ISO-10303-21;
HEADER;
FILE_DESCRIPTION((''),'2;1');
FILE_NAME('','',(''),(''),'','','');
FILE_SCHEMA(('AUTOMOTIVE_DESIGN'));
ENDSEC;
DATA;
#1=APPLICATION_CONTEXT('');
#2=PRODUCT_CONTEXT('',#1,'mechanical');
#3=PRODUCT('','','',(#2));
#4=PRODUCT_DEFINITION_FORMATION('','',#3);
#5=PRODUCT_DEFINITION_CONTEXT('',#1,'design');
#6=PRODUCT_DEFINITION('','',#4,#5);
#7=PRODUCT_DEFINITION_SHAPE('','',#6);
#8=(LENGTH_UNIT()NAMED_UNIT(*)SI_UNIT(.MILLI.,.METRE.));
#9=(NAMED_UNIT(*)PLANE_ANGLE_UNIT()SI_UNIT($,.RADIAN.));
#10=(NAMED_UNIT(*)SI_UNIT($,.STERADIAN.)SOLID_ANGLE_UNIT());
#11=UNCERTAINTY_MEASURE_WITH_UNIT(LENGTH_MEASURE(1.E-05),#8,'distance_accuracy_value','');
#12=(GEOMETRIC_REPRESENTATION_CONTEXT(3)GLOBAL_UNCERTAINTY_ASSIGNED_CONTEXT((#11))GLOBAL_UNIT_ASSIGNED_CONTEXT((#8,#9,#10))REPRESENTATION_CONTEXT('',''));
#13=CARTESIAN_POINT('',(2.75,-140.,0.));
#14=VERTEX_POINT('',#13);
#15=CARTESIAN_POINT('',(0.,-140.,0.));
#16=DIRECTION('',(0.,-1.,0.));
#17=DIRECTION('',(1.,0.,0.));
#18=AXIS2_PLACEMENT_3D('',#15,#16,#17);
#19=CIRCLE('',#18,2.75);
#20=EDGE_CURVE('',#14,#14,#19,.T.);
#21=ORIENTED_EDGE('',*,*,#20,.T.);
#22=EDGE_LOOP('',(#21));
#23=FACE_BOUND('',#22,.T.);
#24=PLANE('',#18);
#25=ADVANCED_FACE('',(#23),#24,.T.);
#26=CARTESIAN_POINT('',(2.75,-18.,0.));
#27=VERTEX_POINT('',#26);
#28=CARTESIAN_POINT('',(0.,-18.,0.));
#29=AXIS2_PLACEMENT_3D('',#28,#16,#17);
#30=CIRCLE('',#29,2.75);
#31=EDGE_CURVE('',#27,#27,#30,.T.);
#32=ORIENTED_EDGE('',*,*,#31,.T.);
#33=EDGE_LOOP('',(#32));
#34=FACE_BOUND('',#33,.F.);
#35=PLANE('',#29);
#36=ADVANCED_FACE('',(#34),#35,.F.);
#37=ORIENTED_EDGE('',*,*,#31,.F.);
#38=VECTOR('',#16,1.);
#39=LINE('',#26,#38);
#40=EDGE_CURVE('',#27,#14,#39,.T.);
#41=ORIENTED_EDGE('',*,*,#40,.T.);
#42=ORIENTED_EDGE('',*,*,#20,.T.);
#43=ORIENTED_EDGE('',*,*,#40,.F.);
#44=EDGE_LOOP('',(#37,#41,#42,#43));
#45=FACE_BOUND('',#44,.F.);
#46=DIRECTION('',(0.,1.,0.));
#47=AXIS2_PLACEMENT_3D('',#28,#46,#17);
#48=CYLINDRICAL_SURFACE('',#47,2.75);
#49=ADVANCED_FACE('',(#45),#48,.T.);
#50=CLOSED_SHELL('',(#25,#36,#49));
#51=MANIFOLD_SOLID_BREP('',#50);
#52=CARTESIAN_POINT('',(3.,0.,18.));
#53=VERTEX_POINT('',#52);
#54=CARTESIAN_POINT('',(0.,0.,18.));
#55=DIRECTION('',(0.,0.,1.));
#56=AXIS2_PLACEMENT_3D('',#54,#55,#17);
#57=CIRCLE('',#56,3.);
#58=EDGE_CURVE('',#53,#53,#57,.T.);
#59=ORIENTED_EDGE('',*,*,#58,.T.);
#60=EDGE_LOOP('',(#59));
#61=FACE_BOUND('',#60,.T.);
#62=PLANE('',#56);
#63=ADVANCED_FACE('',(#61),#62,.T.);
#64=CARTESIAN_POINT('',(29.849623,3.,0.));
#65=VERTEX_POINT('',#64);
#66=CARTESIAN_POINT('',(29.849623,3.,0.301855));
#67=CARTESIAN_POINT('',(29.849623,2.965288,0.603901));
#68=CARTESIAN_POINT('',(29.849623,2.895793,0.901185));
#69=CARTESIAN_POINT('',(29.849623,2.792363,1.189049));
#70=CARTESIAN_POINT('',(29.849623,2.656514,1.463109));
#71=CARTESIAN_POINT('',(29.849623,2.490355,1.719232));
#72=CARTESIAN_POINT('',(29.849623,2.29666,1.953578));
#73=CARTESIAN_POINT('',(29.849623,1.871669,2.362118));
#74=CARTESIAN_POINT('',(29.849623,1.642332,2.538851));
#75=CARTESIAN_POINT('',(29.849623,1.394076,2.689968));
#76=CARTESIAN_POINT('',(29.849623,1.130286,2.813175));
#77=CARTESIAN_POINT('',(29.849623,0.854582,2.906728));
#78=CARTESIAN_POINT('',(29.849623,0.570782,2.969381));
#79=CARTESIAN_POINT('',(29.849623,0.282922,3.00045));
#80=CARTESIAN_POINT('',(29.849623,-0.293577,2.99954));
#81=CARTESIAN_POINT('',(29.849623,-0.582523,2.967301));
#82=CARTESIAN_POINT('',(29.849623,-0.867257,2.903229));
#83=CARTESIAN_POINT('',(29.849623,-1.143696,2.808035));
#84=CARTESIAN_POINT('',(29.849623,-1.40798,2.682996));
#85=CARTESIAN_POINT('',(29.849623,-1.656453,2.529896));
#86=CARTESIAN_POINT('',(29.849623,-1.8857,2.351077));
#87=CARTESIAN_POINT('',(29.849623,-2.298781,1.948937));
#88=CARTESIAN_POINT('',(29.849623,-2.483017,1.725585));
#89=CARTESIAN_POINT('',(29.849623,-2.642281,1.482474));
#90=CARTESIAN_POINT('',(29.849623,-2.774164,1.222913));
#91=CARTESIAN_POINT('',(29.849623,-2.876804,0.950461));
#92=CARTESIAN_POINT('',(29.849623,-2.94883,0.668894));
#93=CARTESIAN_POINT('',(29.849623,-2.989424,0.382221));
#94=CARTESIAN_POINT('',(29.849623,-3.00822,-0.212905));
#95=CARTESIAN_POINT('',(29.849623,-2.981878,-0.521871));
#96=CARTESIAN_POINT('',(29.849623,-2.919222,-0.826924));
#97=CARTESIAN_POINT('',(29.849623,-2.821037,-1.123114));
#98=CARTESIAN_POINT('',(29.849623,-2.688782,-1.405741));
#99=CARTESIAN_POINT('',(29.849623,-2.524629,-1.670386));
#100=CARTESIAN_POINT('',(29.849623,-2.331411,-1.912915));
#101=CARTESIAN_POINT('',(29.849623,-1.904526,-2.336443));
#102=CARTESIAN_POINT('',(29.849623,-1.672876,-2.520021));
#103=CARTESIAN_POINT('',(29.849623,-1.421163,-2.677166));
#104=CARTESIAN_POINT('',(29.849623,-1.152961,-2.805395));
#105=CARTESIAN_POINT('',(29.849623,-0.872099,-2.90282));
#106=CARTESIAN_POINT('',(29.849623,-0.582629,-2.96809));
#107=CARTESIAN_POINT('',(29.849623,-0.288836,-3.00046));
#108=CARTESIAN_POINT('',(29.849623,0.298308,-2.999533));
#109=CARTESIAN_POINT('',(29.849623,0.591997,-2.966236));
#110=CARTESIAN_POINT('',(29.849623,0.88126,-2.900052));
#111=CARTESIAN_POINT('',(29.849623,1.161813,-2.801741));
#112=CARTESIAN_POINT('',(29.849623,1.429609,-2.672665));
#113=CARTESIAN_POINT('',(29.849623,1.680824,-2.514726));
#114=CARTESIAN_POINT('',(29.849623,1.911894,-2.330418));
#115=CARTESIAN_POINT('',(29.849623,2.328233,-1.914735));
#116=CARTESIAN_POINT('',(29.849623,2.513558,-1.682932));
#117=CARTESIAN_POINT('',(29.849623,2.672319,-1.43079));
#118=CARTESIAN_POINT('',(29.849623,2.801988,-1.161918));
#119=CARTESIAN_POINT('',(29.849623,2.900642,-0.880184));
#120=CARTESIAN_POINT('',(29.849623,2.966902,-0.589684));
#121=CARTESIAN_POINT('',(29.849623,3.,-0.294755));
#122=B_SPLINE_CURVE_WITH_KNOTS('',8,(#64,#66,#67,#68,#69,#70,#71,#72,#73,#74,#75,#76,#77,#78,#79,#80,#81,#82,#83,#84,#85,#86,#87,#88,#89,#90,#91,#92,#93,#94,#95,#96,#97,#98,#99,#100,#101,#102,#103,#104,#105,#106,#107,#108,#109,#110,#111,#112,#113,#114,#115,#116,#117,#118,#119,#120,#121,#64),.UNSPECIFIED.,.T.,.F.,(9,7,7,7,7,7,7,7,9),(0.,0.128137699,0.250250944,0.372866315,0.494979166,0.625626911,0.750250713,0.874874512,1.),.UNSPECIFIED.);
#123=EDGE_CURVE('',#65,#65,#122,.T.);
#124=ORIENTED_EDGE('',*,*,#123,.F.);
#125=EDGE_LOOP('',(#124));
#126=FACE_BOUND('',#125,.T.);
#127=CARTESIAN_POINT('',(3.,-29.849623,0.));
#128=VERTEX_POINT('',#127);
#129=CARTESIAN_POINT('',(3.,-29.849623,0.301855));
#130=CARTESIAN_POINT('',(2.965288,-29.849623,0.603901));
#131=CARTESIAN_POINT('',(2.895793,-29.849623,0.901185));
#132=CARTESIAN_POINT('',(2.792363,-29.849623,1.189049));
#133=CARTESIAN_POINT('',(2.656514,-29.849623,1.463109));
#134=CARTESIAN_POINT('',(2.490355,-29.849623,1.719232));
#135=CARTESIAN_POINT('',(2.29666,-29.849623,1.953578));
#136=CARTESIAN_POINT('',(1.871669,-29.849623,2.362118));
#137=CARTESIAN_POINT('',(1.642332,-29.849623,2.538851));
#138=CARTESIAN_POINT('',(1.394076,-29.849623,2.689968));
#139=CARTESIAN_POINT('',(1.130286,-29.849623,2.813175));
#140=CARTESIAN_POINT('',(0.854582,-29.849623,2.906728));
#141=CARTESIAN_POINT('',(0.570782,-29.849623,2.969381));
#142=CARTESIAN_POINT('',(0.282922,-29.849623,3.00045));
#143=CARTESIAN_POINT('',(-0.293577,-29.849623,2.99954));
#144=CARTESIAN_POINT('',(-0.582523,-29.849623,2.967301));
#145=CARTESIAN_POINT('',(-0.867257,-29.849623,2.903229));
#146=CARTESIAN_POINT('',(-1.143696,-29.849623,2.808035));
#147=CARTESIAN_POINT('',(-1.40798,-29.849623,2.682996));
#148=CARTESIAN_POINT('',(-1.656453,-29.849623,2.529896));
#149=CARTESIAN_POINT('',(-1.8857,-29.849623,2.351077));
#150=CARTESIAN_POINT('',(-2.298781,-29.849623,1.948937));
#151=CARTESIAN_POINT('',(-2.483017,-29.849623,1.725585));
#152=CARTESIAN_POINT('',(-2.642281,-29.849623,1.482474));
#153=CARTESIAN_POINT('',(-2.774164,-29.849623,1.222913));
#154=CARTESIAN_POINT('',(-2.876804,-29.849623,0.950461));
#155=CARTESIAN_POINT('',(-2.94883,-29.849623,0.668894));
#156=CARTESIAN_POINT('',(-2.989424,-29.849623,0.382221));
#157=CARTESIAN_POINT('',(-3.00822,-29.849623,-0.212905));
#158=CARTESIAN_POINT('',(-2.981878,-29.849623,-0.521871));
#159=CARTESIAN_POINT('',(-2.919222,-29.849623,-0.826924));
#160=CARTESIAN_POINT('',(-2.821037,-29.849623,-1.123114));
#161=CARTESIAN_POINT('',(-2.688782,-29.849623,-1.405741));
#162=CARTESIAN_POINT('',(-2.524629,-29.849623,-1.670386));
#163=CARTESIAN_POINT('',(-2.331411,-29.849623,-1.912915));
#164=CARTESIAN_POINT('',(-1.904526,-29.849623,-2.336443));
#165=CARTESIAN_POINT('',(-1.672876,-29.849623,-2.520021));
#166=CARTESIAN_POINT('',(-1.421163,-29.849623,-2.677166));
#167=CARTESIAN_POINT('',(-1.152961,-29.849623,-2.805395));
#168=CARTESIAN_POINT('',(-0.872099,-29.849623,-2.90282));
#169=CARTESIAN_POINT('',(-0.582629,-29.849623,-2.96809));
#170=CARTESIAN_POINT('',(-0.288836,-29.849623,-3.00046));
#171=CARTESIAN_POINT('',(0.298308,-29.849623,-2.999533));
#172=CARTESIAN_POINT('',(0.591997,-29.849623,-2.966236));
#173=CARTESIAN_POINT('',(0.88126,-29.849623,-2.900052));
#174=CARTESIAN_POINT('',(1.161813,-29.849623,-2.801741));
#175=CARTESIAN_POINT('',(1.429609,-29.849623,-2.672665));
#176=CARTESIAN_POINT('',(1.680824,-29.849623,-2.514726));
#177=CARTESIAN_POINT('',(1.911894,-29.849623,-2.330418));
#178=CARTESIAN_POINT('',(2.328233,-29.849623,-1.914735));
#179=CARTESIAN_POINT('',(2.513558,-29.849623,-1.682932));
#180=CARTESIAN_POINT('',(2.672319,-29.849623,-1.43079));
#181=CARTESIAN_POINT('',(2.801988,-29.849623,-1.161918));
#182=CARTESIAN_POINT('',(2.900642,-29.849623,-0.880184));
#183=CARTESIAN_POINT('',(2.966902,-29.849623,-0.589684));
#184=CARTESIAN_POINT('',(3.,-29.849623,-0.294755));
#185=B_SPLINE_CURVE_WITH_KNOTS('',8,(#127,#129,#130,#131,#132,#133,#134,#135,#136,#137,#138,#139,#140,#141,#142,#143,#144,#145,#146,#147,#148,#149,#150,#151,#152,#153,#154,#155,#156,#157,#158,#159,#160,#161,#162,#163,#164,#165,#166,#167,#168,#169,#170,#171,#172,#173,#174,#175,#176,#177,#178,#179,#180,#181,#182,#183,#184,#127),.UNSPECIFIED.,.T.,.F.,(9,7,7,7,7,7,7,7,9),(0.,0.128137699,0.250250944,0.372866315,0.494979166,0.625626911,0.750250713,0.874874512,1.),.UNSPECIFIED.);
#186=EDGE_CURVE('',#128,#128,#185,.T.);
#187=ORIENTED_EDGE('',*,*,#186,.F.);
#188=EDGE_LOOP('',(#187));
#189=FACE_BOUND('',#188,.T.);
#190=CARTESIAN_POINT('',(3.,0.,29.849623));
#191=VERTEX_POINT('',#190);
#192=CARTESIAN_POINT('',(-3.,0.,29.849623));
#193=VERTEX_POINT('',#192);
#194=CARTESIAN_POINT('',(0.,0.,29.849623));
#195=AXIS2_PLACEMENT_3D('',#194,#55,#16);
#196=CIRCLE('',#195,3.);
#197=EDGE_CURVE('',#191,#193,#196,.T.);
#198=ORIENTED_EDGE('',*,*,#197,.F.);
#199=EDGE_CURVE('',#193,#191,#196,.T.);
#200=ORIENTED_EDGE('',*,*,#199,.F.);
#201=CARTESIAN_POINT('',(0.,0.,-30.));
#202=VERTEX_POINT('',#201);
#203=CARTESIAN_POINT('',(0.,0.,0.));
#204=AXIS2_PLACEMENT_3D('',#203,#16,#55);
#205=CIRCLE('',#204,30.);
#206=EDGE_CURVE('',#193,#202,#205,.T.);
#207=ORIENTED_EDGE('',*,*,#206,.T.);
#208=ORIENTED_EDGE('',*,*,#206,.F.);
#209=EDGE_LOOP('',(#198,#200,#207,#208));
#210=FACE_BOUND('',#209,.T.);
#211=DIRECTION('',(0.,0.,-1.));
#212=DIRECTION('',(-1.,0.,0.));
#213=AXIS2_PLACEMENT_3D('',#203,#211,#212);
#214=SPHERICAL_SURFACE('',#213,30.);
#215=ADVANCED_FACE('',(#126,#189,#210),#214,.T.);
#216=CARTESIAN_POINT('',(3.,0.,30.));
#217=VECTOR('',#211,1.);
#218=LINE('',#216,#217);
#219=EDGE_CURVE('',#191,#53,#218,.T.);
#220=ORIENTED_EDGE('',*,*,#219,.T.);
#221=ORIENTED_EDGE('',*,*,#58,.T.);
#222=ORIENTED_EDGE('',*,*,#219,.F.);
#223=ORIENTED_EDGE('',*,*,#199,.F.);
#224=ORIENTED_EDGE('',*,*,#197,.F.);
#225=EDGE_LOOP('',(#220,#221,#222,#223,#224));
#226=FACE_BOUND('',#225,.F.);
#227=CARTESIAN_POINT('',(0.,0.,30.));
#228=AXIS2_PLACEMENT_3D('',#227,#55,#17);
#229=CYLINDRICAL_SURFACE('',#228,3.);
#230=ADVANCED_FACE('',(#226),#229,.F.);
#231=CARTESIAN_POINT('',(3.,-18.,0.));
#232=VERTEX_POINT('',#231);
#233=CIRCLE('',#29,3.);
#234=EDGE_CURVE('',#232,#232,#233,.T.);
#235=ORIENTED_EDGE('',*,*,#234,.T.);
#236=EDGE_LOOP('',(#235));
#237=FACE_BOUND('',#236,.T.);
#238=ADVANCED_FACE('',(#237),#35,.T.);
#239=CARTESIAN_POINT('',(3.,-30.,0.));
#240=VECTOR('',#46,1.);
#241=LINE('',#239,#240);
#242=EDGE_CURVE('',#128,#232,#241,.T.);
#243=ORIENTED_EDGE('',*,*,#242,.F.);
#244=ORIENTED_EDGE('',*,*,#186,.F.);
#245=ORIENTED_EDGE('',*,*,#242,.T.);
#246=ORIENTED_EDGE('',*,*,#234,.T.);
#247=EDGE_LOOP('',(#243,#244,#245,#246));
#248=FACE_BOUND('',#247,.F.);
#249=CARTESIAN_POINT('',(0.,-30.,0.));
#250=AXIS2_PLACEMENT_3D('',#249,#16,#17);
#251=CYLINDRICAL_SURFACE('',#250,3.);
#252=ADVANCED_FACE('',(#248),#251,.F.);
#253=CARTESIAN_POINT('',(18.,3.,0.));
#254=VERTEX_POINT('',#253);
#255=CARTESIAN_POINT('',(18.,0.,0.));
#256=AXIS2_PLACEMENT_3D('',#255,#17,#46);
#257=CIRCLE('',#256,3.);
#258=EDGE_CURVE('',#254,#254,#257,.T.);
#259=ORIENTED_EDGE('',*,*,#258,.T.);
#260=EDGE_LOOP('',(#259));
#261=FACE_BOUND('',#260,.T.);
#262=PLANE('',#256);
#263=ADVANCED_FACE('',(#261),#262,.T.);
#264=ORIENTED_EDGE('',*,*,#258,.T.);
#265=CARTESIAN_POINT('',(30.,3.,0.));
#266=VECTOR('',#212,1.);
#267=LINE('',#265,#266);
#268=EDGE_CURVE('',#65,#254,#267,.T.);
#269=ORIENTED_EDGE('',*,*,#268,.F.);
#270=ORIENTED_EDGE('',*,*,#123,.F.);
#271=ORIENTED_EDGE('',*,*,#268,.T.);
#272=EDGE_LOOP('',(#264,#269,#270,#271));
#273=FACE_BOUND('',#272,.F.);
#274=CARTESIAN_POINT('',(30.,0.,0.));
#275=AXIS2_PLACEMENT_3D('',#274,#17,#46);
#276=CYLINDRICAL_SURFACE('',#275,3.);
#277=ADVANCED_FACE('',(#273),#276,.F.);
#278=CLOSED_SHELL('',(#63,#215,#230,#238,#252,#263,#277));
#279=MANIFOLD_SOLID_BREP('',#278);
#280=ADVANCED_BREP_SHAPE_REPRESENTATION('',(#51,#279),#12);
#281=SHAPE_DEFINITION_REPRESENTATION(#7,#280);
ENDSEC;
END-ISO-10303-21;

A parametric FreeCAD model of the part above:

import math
import FreeCAD as App
import Part
import Sketcher
Q = App.Units.Quantity

doc = App.newDocument("Part")
body = doc.addObject("PartDesign::Body", "Body")

# Sketch on XZ plane
sketch1 = doc.addObject("Sketcher::SketchObject", "Sketch")
body.addObject(sketch1)
sketch1.AttachmentSupport = (doc.XZ_Plane, [""])
sketch1.MapMode = "FlatFace"
sketch1.addGeometry([
    Part.ArcOfCircle(Part.Circle(App.Vector(0, 0, 0), App.Vector(0, 0, 1), 30), math.radians(90), math.radians(270)),
    Part.LineSegment(App.Vector(0, -30, 0), App.Vector(0, 30, 0)),
], False)
sketch1.addConstraint([
    Sketcher.Constraint("Coincident", 0, 1, 1, 2),
    Sketcher.Constraint("Coincident", 1, 1, 0, 2),
    Sketcher.Constraint("Vertical", 1),
    Sketcher.Constraint("Coincident", 0, 3, -1, 1),
    Sketcher.Constraint("PointOnObject", 0, 1, -2),
    Sketcher.Constraint("Radius", 0, Q("30 mm")),
])
revolution = doc.addObject("PartDesign::Revolution", "Revolution")
body.addObject(revolution)
revolution.Profile = sketch1
revolution.ReferenceAxis = (sketch1, ["V_Axis"])
revolution.Angle = 360

# Sketch on XZ plane
sketch2 = doc.addObject("Sketcher::SketchObject", "Sketch001")
body.addObject(sketch2)
sketch2.AttachmentSupport = (doc.XZ_Plane, [""])
sketch2.MapMode = "FlatFace"
sketch2.AttachmentOffset = App.Placement(App.Vector(0, 0, 30), App.Rotation())
sketch2.addGeometry(Part.Circle(App.Vector(0, 0, 0), App.Vector(0, 0, 1), 3), False)
sketch2.addConstraint([
    Sketcher.Constraint("Coincident", 0, 3, -1, 1),
    Sketcher.Constraint("Diameter", 0, Q("6 mm")),
])
pocket1 = doc.addObject("PartDesign::Pocket", "Pocket")
body.addObject(pocket1)
pocket1.Profile = sketch2
pocket1.Length = 12

# Sketch on YZ plane
sketch3 = doc.addObject("Sketcher::SketchObject", "Sketch002")
body.addObject(sketch3)
sketch3.AttachmentSupport = (doc.YZ_Plane, [""])
sketch3.MapMode = "FlatFace"
sketch3.AttachmentOffset = App.Placement(App.Vector(0, 0, 30), App.Rotation())
sketch3.addGeometry(Part.Circle(App.Vector(0, 0, 0), App.Vector(0, 0, 1), 3), False)
sketch3.addConstraint([
    Sketcher.Constraint("Coincident", 0, 3, -1, 1),
    Sketcher.Constraint("Diameter", 0, Q("6 mm")),
])
pocket2 = doc.addObject("PartDesign::Pocket", "Pocket001")
body.addObject(pocket2)
pocket2.Profile = sketch3
pocket2.Length = 12

# Sketch on XY plane
sketch4 = doc.addObject("Sketcher::SketchObject", "Sketch003")
body.addObject(sketch4)
sketch4.AttachmentSupport = (doc.XY_Plane, [""])
sketch4.MapMode = "FlatFace"
sketch4.AttachmentOffset = App.Placement(App.Vector(0, 0, 30), App.Rotation())
sketch4.addGeometry(Part.Circle(App.Vector(0, 0, 0), App.Vector(0, 0, 1), 3), False)
sketch4.addConstraint([
    Sketcher.Constraint("Coincident", 0, 3, -1, 1),
    Sketcher.Constraint("Diameter", 0, Q("6 mm")),
])
pocket3 = doc.addObject("PartDesign::Pocket", "Pocket002")
body.addObject(pocket3)
pocket3.Profile = sketch4
pocket3.Length = 12
body2 = doc.addObject("PartDesign::Body", "Body001")

# Sketch on XZ plane
sketch5 = doc.addObject("Sketcher::SketchObject", "Sketch004")
body2.addObject(sketch5)
sketch5.AttachmentSupport = (doc.getObject("XZ_Plane001"), [""])
sketch5.MapMode = "FlatFace"
sketch5.AttachmentOffset = App.Placement(App.Vector(0, 0, 18), App.Rotation())
sketch5.addGeometry(Part.Circle(App.Vector(0, 0, 0), App.Vector(0, 0, 1), 2.8), False)
sketch5.addConstraint([
    Sketcher.Constraint("Coincident", 0, 3, -1, 1),
    Sketcher.Constraint("Diameter", 0, Q("5.5 mm")),
])
pad1 = doc.addObject("PartDesign::Pad", "Pad")
body2.addObject(pad1)
pad1.Profile = sketch5
pad1.Length = 122

doc.recompute()
